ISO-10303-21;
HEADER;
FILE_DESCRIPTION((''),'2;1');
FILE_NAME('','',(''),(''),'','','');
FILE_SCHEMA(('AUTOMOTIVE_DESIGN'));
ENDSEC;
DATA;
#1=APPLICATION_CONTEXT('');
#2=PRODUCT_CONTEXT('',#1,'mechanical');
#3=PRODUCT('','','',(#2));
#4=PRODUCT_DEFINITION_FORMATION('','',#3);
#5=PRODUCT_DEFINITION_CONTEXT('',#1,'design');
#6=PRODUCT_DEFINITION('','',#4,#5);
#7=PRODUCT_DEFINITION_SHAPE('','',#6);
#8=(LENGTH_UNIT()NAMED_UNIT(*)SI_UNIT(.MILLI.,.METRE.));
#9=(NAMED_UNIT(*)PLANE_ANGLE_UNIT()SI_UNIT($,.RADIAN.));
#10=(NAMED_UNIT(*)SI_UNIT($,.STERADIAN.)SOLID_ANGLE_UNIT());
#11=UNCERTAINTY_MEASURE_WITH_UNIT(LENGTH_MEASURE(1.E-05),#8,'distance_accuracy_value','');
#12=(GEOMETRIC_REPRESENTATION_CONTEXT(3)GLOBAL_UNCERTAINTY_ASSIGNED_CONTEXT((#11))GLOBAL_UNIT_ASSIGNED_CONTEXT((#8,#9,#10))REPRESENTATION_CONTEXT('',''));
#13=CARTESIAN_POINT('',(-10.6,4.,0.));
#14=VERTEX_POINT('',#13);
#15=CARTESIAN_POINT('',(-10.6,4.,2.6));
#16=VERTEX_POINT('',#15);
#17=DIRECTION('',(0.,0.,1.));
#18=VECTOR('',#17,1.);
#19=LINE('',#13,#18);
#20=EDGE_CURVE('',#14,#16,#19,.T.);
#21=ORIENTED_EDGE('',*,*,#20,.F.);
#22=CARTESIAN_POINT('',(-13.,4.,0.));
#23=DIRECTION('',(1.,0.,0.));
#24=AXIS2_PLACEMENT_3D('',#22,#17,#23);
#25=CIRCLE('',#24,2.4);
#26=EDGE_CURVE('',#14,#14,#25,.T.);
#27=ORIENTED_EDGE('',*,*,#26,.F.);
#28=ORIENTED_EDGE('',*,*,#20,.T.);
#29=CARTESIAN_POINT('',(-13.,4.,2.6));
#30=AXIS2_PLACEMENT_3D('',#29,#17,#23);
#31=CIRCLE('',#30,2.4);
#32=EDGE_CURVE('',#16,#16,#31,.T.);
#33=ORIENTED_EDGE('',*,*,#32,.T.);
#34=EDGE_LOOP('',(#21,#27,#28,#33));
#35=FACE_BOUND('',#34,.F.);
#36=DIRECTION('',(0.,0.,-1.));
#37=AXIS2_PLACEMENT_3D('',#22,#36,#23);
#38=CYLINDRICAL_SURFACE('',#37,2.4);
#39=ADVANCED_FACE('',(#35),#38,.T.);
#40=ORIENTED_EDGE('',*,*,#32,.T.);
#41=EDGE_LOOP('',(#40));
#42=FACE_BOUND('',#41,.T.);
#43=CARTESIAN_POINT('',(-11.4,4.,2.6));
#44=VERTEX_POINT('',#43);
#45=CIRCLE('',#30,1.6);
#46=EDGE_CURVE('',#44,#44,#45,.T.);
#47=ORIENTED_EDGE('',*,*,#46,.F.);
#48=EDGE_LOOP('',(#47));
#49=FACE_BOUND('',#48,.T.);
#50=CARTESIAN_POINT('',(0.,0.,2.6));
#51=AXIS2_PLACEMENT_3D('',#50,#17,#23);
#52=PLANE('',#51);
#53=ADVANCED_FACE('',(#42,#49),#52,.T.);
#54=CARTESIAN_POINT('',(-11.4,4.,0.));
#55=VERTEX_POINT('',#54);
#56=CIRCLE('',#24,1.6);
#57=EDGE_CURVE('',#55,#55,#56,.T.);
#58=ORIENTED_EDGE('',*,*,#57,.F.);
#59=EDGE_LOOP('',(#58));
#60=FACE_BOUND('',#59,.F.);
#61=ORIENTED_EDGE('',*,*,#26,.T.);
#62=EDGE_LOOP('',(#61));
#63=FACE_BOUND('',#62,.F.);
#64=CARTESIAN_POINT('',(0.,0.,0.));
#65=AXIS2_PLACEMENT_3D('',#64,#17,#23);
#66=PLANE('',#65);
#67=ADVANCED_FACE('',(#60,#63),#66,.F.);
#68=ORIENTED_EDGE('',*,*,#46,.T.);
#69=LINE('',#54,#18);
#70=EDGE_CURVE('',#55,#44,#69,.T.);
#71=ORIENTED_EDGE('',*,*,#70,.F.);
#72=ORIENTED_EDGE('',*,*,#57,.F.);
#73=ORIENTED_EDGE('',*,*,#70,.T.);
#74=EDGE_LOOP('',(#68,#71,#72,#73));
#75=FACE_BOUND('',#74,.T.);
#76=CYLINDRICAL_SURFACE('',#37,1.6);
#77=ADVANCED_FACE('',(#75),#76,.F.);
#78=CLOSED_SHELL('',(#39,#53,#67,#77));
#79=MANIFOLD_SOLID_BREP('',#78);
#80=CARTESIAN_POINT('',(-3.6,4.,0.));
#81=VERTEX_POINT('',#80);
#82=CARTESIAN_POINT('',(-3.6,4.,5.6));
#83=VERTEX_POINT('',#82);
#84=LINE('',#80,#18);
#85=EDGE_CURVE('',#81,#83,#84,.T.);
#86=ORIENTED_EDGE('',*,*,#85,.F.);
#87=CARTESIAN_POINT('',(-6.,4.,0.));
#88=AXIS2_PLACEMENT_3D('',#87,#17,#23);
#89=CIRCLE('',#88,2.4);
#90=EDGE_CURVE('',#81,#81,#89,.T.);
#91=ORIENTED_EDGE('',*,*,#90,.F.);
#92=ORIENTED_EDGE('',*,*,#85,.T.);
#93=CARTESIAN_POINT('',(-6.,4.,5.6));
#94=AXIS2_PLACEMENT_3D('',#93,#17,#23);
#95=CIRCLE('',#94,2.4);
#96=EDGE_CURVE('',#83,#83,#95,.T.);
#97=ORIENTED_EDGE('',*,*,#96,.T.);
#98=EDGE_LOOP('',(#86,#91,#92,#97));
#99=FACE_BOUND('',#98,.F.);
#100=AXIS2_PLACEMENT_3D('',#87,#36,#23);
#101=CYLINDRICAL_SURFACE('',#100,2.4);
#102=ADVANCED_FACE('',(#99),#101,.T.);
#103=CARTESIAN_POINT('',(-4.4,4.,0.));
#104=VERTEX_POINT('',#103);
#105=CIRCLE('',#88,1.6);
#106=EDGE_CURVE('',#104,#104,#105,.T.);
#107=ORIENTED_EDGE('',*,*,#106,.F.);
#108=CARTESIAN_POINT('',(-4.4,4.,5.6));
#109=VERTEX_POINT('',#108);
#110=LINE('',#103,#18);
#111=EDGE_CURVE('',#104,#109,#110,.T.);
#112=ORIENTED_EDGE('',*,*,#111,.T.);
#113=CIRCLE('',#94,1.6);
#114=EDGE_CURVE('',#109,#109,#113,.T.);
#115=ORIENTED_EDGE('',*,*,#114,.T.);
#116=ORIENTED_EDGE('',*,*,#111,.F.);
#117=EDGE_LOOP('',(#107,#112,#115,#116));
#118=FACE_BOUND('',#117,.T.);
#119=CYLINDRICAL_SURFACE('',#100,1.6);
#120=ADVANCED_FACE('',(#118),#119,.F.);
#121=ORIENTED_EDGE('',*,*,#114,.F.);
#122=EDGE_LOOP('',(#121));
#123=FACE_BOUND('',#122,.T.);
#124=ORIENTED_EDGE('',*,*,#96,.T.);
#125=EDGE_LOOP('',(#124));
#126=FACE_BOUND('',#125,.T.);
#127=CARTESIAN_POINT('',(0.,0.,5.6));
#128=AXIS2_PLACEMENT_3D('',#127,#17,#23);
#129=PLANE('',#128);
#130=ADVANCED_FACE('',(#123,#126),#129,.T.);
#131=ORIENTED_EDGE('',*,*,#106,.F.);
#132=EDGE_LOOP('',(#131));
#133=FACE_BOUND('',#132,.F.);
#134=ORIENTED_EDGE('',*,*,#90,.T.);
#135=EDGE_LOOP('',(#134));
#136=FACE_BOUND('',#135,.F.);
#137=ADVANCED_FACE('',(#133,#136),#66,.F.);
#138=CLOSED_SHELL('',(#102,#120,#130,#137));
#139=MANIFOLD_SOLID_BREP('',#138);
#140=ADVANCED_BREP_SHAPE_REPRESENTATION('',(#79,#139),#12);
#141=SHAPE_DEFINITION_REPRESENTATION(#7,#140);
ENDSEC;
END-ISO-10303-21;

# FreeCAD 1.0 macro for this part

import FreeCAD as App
import Part
import Sketcher

doc = App.newDocument("Part")
body = doc.addObject("PartDesign::Body", "Body")
body.AllowCompound = True

# Sketch on XY plane
sketch1 = body.newObject("Sketcher::SketchObject", "Sketch")
sketch1.AttachmentSupport = (doc.getObject("XY_Plane"), [""])
sketch1.MapMode = "FlatFace"
sketch1.addGeometry([
    Part.Circle(App.Vector(-13, 4, 0), App.Vector(0, 0, 1), 2.4),
    Part.Circle(App.Vector(-13, 4, 0), App.Vector(0, 0, 1), 1.6),
], False)
sketch1.addConstraint([
    Sketcher.Constraint("Coincident", 1, 3, 0, 3),
    Sketcher.Constraint("Diameter", 0, 4.8),
    Sketcher.Constraint("Diameter", 1, 3.2),
    Sketcher.Constraint("DistanceX", 0, 3, -1, 1, 13.0),
    Sketcher.Constraint("DistanceY", -1, 1, 0, 3, 4.0),
])
pad1 = body.newObject("PartDesign::Pad", "Pad")
pad1.Profile = sketch1
pad1.Length = 2.6

# Sketch on XY plane
sketch2 = body.newObject("Sketcher::SketchObject", "Sketch001")
sketch2.AttachmentSupport = (doc.getObject("XY_Plane"), [""])
sketch2.MapMode = "FlatFace"
sketch2.addGeometry([
    Part.Circle(App.Vector(-6, 4, 0), App.Vector(0, 0, 1), 2.4),
    Part.Circle(App.Vector(-6, 4, 0), App.Vector(0, 0, 1), 1.6),
], False)
sketch2.addConstraint([
    Sketcher.Constraint("Coincident", 1, 3, 0, 3),
    Sketcher.Constraint("Diameter", 0, 4.8),
    Sketcher.Constraint("Diameter", 1, 3.2),
    Sketcher.Constraint("DistanceX", 0, 3, -1, 1, 6.0),
    Sketcher.Constraint("DistanceY", -1, 1, 0, 3, 4.0),
])
pad2 = body.newObject("PartDesign::Pad", "Pad001")
pad2.Profile = sketch2
pad2.Length = 5.6

doc.recompute()
